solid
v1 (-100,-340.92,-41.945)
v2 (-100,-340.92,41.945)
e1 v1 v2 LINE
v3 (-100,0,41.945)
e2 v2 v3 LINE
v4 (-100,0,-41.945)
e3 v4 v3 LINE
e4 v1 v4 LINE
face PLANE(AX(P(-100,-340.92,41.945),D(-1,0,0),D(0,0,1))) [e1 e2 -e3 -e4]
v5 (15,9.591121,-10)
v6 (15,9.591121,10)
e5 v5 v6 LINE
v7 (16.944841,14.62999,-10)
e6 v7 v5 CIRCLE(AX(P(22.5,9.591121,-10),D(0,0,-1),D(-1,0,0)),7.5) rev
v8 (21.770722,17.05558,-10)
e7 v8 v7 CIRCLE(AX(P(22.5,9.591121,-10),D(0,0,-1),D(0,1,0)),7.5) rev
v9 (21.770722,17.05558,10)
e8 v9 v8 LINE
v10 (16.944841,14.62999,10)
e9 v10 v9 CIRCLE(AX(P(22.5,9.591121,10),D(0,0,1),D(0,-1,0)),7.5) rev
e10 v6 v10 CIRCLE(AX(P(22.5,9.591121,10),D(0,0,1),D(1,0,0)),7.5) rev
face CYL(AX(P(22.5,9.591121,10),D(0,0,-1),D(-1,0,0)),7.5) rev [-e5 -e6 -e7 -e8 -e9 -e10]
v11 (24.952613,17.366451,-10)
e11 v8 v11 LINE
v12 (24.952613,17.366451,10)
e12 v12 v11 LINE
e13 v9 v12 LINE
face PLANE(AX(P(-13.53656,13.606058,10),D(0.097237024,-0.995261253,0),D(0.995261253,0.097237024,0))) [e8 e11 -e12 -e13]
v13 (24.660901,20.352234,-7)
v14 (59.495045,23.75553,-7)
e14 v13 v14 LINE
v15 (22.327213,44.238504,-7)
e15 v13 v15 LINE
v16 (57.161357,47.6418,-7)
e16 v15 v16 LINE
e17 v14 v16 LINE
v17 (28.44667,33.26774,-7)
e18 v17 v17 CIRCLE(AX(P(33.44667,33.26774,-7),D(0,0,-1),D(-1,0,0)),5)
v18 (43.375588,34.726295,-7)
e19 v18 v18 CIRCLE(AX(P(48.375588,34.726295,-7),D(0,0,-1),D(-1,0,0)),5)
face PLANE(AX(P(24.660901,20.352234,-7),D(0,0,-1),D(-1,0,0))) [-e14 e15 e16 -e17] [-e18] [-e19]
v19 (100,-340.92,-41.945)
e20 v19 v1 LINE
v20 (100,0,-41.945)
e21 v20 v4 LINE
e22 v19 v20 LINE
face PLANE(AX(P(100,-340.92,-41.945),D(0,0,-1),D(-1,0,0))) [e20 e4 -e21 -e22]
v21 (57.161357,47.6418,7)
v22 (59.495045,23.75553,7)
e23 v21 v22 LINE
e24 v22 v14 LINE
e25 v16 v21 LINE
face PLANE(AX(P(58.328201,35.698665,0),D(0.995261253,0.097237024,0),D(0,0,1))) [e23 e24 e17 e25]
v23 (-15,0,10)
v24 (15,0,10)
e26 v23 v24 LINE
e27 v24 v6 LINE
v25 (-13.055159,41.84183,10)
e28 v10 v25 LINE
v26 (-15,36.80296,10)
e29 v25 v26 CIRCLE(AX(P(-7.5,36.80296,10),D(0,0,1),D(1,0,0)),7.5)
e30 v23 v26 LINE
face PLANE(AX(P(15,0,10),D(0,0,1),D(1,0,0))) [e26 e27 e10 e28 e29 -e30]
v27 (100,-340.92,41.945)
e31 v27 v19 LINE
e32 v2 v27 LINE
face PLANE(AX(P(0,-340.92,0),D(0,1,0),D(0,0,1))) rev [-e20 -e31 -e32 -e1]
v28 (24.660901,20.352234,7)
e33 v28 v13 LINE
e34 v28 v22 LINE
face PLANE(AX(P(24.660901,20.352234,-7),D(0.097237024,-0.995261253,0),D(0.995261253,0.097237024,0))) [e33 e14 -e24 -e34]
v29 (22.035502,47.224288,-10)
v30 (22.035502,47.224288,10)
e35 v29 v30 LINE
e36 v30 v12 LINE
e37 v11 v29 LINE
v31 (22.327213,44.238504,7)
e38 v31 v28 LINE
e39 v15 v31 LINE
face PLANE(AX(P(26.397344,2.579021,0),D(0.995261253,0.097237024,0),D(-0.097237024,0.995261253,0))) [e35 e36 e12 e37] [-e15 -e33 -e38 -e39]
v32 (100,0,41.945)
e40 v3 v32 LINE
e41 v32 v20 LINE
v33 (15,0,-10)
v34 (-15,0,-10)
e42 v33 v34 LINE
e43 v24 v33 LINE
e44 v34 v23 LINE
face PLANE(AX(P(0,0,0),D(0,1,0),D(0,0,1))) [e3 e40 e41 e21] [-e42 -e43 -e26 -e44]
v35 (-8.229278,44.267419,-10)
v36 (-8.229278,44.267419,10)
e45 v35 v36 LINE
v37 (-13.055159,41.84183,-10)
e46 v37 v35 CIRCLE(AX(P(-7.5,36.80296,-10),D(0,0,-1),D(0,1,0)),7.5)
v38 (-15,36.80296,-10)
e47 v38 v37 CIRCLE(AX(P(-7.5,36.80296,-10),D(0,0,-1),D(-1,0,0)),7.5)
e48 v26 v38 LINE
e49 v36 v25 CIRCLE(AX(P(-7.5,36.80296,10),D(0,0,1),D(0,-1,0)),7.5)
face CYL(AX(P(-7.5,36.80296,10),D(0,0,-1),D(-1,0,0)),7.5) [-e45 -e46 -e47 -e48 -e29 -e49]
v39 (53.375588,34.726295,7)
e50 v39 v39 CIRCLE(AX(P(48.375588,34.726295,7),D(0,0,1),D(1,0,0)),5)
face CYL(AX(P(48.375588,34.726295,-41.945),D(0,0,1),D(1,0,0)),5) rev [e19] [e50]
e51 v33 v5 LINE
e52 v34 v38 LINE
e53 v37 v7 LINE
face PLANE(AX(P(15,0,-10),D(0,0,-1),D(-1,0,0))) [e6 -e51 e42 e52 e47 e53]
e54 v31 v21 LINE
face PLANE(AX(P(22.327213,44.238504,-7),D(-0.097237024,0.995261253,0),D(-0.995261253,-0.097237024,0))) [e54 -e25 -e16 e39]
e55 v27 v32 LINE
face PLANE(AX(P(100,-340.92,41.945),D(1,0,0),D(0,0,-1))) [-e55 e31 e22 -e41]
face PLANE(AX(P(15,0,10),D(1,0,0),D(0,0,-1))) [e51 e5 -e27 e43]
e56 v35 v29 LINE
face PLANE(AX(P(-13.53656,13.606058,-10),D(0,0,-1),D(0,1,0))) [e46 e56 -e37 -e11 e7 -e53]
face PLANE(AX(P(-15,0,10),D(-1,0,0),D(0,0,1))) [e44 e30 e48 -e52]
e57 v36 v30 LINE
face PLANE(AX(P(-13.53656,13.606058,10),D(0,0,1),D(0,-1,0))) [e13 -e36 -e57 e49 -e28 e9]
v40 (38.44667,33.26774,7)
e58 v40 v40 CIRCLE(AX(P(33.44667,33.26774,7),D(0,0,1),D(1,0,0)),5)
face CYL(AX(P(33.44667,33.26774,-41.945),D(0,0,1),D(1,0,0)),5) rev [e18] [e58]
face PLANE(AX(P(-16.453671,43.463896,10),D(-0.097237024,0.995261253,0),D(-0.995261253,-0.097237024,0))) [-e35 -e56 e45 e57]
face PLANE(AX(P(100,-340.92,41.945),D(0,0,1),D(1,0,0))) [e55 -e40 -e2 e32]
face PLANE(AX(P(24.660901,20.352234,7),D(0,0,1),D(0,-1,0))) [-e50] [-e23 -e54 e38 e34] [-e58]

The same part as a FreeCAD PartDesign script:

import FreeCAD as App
import Part
import Sketcher
Q = App.Units.Quantity


def edges_at(feature, points):
    """Names of the edges that pass closest to the given points."""
    edges = feature.Shape.Edges
    near = lambda p: min(range(len(edges)), key=lambda i: edges[i].distToShape(Part.Vertex(*p))[0])
    return sorted({f"Edge{near(p) + 1}" for p in points})


def add_polygon(sketch, points):
    """Adds a closed chain of lines whose ends are joined by coincident constraints."""
    first, n = sketch.GeometryCount, len(points)
    for a, b in zip(points, points[1:] + points[:1]):
        sketch.addGeometry(Part.LineSegment(App.Vector(*a, 0), App.Vector(*b, 0)), False)
    for i in range(n):
        sketch.addConstraint(Sketcher.Constraint("Coincident", first + i, 2, first + (i + 1) % n, 1))

doc = App.newDocument("Part")
body = doc.addObject("PartDesign::Body", "Body")

# Sketch on XZ plane
sketch1 = body.newObject("Sketcher::SketchObject", "Sketch")
sketch1.AttachmentSupport = (doc.getObject("XZ_Plane"), [""])
sketch1.MapMode = "FlatFace"
add_polygon(sketch1, [(-100, -42), (-100, 42), (100, 42), (100, -42)])  # lines 0-3
sketch1.addConstraint(Sketcher.Constraint("Vertical", 0))
sketch1.addConstraint(Sketcher.Constraint("Horizontal", 1))
sketch1.addConstraint(Sketcher.Constraint("Vertical", 2))
sketch1.addConstraint(Sketcher.Constraint("Horizontal", 3))
sketch1.addConstraint(Sketcher.Constraint("Symmetric", 0, 2, 2, 2, -1, 1))
sketch1.addConstraint(Sketcher.Constraint("DistanceX", 1, 1, 1, 2, Q("200 mm")))
sketch1.addConstraint(Sketcher.Constraint("DistanceY", 0, 1, 0, 2, Q("83.89 mm")))
pad1 = body.newObject("PartDesign::Pad", "Pad")
pad1.Profile = sketch1
pad1.Length = 340.92

# Sketch on XZ plane
sketch2 = body.newObject("Sketcher::SketchObject", "Sketch001")
sketch2.AttachmentSupport = (doc.getObject("XZ_Plane"), [""])
sketch2.MapMode = "FlatFace"
add_polygon(sketch2, [(-15, -10), (-15, 10), (15, 10), (15, -10)])  # lines 0-3
sketch2.addConstraint(Sketcher.Constraint("Vertical", 0))
sketch2.addConstraint(Sketcher.Constraint("Horizontal", 1))
sketch2.addConstraint(Sketcher.Constraint("Vertical", 2))
sketch2.addConstraint(Sketcher.Constraint("Horizontal", 3))
sketch2.addConstraint(Sketcher.Constraint("Symmetric", 0, 2, 2, 2, -1, 1))
sketch2.addConstraint(Sketcher.Constraint("DistanceX", 1, 1, 1, 2, Q("30 mm")))
sketch2.addConstraint(Sketcher.Constraint("DistanceY", 0, 1, 0, 2, Q("20 mm")))

# Sketch on XY plane
sketch3 = body.newObject("Sketcher::SketchObject", "Sketch002")
sketch3.AttachmentSupport = (doc.getObject("XY_Plane"), [""])
sketch3.MapMode = "FlatFace"
sketch3.addGeometry(Part.LineSegment(App.Vector(0, 0, 0), App.Vector(0, 30, 0)), False)
sketch3.addGeometry(Part.LineSegment(App.Vector(0, 30, 0), App.Vector(58, 36, 0)), False)
sketch3.addConstraint(Sketcher.Constraint("Coincident", 0, 2, 1, 1))
sketch3.addConstraint(Sketcher.Constraint("Vertical", 0))
sketch3.addConstraint(Sketcher.Constraint("Coincident", 0, 1, -1, 1))
sketch3.addConstraint(Sketcher.Constraint("DistanceY", 0, 1, 0, 2, Q("30 mm")))
sketch3.addConstraint(Sketcher.Constraint("DistanceX", -1, 1, 1, 2, Q("58.328201 mm")))
sketch3.addConstraint(Sketcher.Constraint("Distance", 1, Q("58.60592 mm")))
doc.recompute()

additivepipe = body.newObject("PartDesign::AdditivePipe", "AdditivePipe")
additivepipe.Profile = sketch2
additivepipe.Spine = (sketch3, ["Edge1", "Edge2"])
additivepipe.Transition = "Right corner"

# Sketch on an angled plane
sketch4 = body.newObject("Sketcher::SketchObject", "Sketch003")
sketch4.Placement = App.Placement(App.Vector(61.231488, 5.982316, 0), App.Rotation(App.Vector(0, 0, -1), App.Vector(-0.097237024, 0.995261253, 0), App.Vector(0.995261253, 0.097237024, 0), "ZXY"))
add_polygon(sketch4, [(-10, 45), (-10, 15), (10, 15), (10, 45)])  # lines 0-3
add_polygon(sketch4, [(7, 18), (-7, 18), (-7, 42), (7, 42)])  # lines 4-7
sketch4.addConstraint(Sketcher.Constraint("Vertical", 0))
sketch4.addConstraint(Sketcher.Constraint("Horizontal", 1))
sketch4.addConstraint(Sketcher.Constraint("Vertical", 2))
sketch4.addConstraint(Sketcher.Constraint("Horizontal", 3))
sketch4.addConstraint(Sketcher.Constraint("Horizontal", 4))
sketch4.addConstraint(Sketcher.Constraint("Vertical", 5))
sketch4.addConstraint(Sketcher.Constraint("Horizontal", 6))
sketch4.addConstraint(Sketcher.Constraint("Vertical", 7))
sketch4.addConstraint(Sketcher.Constraint("DistanceX", 1, 1, 1, 2, Q("20 mm")))
sketch4.addConstraint(Sketcher.Constraint("DistanceX", 4, 2, 4, 1, Q("14 mm")))
sketch4.addConstraint(Sketcher.Constraint("DistanceY", 0, 2, 0, 1, Q("30 mm")))
sketch4.addConstraint(Sketcher.Constraint("DistanceY", 5, 1, 5, 2, Q("24 mm")))
sketch4.addConstraint(Sketcher.Constraint("DistanceX", 0, 2, -1, 1, Q("10 mm")))
sketch4.addConstraint(Sketcher.Constraint("DistanceX", 4, 2, -1, 1, Q("7 mm")))
sketch4.addConstraint(Sketcher.Constraint("DistanceY", 0, 2, 4, 2, Q("3 mm")))
sketch4.addConstraint(Sketcher.Constraint("DistanceY", -1, 1, 0, 2, Q("14.857838 mm")))
pocket1 = body.newObject("PartDesign::Pocket", "Pocket")
pocket1.Profile = sketch4
pocket1.Length = 35

# Sketch on XY plane
sketch5 = body.newObject("Sketcher::SketchObject", "Sketch004")
sketch5.AttachmentSupport = (doc.getObject("XY_Plane"), [""])
sketch5.MapMode = "FlatFace"
sketch5.AttachmentOffset = App.Placement(App.Vector(0, 0, 7), App.Rotation())
sketch5.addGeometry(Part.Circle(App.Vector(33, 33, 0), App.Vector(0, 0, 1), 5), False)
sketch5.addGeometry(Part.Circle(App.Vector(48, 35, 0), App.Vector(0, 0, 1), 5), False)
sketch5.addConstraint(Sketcher.Constraint("Equal", 0, 1))
sketch5.addConstraint(Sketcher.Constraint("Diameter", 0, Q("10 mm")))
sketch5.addConstraint(Sketcher.Constraint("DistanceX", -1, 1, 0, 3, Q("33.44667 mm")))
sketch5.addConstraint(Sketcher.Constraint("DistanceY", -1, 1, 0, 3, Q("33.26774 mm")))
sketch5.addConstraint(Sketcher.Constraint("DistanceX", -1, 1, 1, 3, Q("48.375588 mm")))
sketch5.addConstraint(Sketcher.Constraint("DistanceY", -1, 1, 1, 3, Q("34.726295 mm")))
pocket2 = body.newObject("PartDesign::Pocket", "Pocket001")
pocket2.Profile = sketch5
pocket2.Type = "ThroughAll"
doc.recompute()

fillet = body.newObject("PartDesign::Fillet", "Fillet")
fillet.Base = (pocket2, edges_at(pocket2, [(-15, 43.606, 0), (15, 16.394, 0)]))
fillet.Radius = 7.5

doc.recompute()
